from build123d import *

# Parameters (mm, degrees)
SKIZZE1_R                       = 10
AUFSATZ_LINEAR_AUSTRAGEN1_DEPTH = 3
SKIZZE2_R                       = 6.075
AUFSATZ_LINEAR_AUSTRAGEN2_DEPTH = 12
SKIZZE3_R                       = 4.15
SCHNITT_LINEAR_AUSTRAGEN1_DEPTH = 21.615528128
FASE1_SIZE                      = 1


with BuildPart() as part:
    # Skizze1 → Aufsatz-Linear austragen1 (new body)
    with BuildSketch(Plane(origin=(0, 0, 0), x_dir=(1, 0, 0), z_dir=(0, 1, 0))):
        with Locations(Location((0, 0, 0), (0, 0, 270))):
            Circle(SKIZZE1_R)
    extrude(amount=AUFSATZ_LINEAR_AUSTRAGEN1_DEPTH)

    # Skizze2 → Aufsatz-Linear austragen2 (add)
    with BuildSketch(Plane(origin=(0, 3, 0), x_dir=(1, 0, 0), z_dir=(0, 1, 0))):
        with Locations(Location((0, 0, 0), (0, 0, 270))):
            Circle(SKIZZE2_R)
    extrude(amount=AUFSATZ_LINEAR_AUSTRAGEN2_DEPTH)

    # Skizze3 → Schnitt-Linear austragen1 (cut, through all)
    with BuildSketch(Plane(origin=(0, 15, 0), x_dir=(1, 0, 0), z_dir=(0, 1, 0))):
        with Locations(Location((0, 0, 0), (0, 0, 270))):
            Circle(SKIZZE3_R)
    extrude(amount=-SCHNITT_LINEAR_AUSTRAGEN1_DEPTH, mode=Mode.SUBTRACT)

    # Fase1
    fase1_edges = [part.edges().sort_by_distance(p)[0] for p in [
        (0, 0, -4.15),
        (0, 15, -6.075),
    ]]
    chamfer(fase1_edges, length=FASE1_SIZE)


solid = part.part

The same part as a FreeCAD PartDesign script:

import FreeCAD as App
import Part
import Sketcher


def edges_at(feature, points):
    """Names of the edges that pass closest to the given points."""
    edges = feature.Shape.Edges
    near = lambda p: min(range(len(edges)), key=lambda i: edges[i].distToShape(Part.Vertex(*p))[0])
    return sorted({f"Edge{near(p) + 1}" for p in points})

doc = App.newDocument("Part")
params = doc.addObject("Spreadsheet::Sheet", "Params")
for row, (alias, value) in enumerate([
    ("sketch1_diameter", "20 mm"),
    ("pad1_length", "3 mm"),
    ("sketch2_diameter", "12.15 mm"),
    ("pad2_length", "12 mm"),
    ("sketch3_diameter", "8.3 mm"),
    ("chamfer_size", "1 mm"),
], start=1):
    params.set(f"A{row}", alias)
    params.set(f"B{row}", "=" + value)
    params.setAlias(f"B{row}", alias)

body = doc.addObject("PartDesign::Body", "Body")

# Sketch on XZ plane
sketch1 = body.newObject("Sketcher::SketchObject", "Sketch")
sketch1.AttachmentSupport = (doc.getObject("XZ_Plane"), [""])
sketch1.MapMode = "FlatFace"
sketch1.addGeometry(Part.Circle(App.Vector(0, 0, 0), App.Vector(0, 0, 1), 10), False)
sketch1.addConstraint(Sketcher.Constraint("Coincident", 0, 3, -1, 1))
sketch1.addConstraint(Sketcher.Constraint("Diameter", 0, 20.0))
sketch1.setExpression("Constraints[1]", "Params.sketch1_diameter")
pad1 = body.newObject("PartDesign::Pad", "Pad")
pad1.Profile = sketch1
pad1.setExpression("Length", "Params.pad1_length")
pad1.Reversed = True

# Sketch on XZ plane
sketch2 = body.newObject("Sketcher::SketchObject", "Sketch001")
sketch2.AttachmentSupport = (doc.getObject("XZ_Plane"), [""])
sketch2.MapMode = "FlatFace"
sketch2.AttachmentOffset = App.Placement(App.Vector(0, 0, -3), App.Rotation())
sketch2.addGeometry(Part.Circle(App.Vector(0, 0, 0), App.Vector(0, 0, 1), 6.075), False)
sketch2.addConstraint(Sketcher.Constraint("Coincident", 0, 3, -1, 1))
sketch2.addConstraint(Sketcher.Constraint("Diameter", 0, 12.15))
sketch2.setExpression("Constraints[1]", "Params.sketch2_diameter")
pad2 = body.newObject("PartDesign::Pad", "Pad001")
pad2.Profile = sketch2
pad2.setExpression("Length", "Params.pad2_length")
pad2.Reversed = True

# Sketch on XZ plane
sketch3 = body.newObject("Sketcher::SketchObject", "Sketch002")
sketch3.AttachmentSupport = (doc.getObject("XZ_Plane"), [""])
sketch3.MapMode = "FlatFace"
sketch3.AttachmentOffset = App.Placement(App.Vector(0, 0, -15), App.Rotation())
sketch3.addGeometry(Part.Circle(App.Vector(0, 0, 0), App.Vector(0, 0, 1), 4.15), False)
sketch3.addConstraint(Sketcher.Constraint("Coincident", 0, 3, -1, 1))
sketch3.addConstraint(Sketcher.Constraint("Diameter", 0, 8.3))
sketch3.setExpression("Constraints[1]", "Params.sketch3_diameter")
pocket1 = body.newObject("PartDesign::Pocket", "Pocket")
pocket1.Profile = sketch3
pocket1.Type = "ThroughAll"
pocket1.Reversed = True
doc.recompute()

chamfer = body.newObject("PartDesign::Chamfer", "Chamfer")
chamfer.Base = (pocket1, edges_at(pocket1, [(0, 0, -4.15), (0, 15, -6.075)]))
chamfer.setExpression("Size", "Params.chamfer_size")

doc.recompute()
